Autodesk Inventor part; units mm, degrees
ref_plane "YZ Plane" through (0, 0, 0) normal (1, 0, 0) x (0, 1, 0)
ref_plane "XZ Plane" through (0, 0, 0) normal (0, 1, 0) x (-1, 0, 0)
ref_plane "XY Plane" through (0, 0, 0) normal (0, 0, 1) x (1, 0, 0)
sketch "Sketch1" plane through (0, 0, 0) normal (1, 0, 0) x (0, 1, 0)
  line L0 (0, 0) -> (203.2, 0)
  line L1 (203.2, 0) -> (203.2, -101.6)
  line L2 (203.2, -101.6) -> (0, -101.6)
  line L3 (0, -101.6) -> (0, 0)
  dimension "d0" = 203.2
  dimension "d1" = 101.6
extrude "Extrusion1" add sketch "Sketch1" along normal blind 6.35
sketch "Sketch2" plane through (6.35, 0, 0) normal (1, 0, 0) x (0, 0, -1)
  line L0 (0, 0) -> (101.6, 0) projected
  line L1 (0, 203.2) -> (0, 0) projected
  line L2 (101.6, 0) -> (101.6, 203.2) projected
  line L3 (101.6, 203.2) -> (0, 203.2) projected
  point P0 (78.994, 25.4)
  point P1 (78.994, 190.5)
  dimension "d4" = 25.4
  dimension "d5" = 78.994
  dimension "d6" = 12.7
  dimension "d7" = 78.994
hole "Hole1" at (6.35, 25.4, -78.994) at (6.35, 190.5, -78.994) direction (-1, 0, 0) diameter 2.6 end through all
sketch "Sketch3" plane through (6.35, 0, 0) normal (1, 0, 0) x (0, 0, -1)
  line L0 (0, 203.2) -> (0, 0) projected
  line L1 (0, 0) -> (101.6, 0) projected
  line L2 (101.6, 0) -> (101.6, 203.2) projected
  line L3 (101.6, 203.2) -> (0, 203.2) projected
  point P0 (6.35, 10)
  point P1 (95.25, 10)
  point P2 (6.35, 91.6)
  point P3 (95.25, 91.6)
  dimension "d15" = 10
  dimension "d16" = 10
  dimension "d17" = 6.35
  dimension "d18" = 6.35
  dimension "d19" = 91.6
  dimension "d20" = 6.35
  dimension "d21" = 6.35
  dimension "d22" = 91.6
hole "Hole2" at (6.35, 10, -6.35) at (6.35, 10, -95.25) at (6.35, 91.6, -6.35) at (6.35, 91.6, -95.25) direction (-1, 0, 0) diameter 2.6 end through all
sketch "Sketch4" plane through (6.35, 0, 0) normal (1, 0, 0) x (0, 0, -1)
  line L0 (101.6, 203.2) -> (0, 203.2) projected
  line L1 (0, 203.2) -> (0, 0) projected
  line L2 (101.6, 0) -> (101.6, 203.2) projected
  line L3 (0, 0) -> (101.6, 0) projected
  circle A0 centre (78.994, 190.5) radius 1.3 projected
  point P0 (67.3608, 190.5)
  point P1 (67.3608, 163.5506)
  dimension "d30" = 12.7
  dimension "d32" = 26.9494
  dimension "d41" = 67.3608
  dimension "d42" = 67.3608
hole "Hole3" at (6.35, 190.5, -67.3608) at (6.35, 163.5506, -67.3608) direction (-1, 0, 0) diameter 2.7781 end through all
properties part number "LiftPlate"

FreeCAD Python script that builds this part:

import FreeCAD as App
import Part
import Sketcher
from FreeCAD import Vector
Q = App.Units.Quantity

doc = App.newDocument("Part")
body = doc.addObject("PartDesign::Body", "Body")

sketch1 = body.newObject("Sketcher::SketchObject", "Sketch")
sketch1.AttachmentSupport = (doc.getObject("YZ_Plane"), [""])
sketch1.MapMode = "FlatFace"
sketch1.addGeometry(Part.LineSegment(Vector(203.2, 0, 0), Vector(0, 0, 0)), False)
sketch1.addGeometry(Part.LineSegment(Vector(0, 0, 0), Vector(0, -101.6, 0)), False)
sketch1.addGeometry(Part.LineSegment(Vector(0, -101.6, 0), Vector(203.2, -101.6, 0)), False)
sketch1.addGeometry(Part.LineSegment(Vector(203.2, -101.6, 0), Vector(203.2, 0, 0)), False)
sketch1.addConstraint(Sketcher.Constraint("Coincident", 0, 2, 1, 1))
sketch1.addConstraint(Sketcher.Constraint("Coincident", 1, 2, 2, 1))
sketch1.addConstraint(Sketcher.Constraint("Coincident", 2, 2, 3, 1))
sketch1.addConstraint(Sketcher.Constraint("Coincident", 3, 2, 0, 1))
sketch1.addConstraint(Sketcher.Constraint("Horizontal", 0))
sketch1.addConstraint(Sketcher.Constraint("Vertical", 1))
sketch1.addConstraint(Sketcher.Constraint("Horizontal", 2))
sketch1.addConstraint(Sketcher.Constraint("Vertical", 3))
sketch1.addConstraint(Sketcher.Constraint("Coincident", 0, 2, -1, 1))
sketch1.addConstraint(Sketcher.Constraint("DistanceX", 0, 2, 0, 1, Q("8 in")))
sketch1.addConstraint(Sketcher.Constraint("DistanceY", 1, 2, 1, 1, Q("4 in")))
pad1 = body.newObject("PartDesign::Pad", "Pad")
pad1.Profile = sketch1
pad1.Length = Q("0.25 in")

sketch2 = body.newObject("Sketcher::SketchObject", "Sketch001")
sketch2.AttachmentSupport = (doc.getObject("YZ_Plane"), [""])
sketch2.MapMode = "FlatFace"
sketch2.AttachmentOffset = App.Placement(Vector(0, 0, 0.25 * 25.4), App.Rotation())
sketch2.addGeometry(Part.Circle(Vector(25.4, -78.994, 0), Vector(0, 0, 1), 1.3), False)
sketch2.addGeometry(Part.Circle(Vector(190.5, -78.994, 0), Vector(0, 0, 1), 1.3), False)
sketch2.addConstraint(Sketcher.Constraint("Equal", 0, 1))
sketch2.addConstraint(Sketcher.Constraint("Horizontal", 0, 3, 1, 3))
sketch2.addConstraint(Sketcher.Constraint("DistanceX", -1, 1, 0, 3, Q("1 in")))
sketch2.addConstraint(Sketcher.Constraint("DistanceX", -1, 1, 1, 3, Q("7.5 in")))
sketch2.addConstraint(Sketcher.Constraint("Diameter", 0, 2.6))
sketch2.addConstraint(Sketcher.Constraint("DistanceY", 0, 3, -1, 1, Q("3.11 in")))
doc.recompute()
hole = body.newObject("PartDesign::Hole", "Hole")
hole.Profile = sketch2
hole.ThreadType = "None"
hole.Diameter = 2.6
hole.DepthType = "ThroughAll"

sketch3 = body.newObject("Sketcher::SketchObject", "Sketch002")
sketch3.AttachmentSupport = (doc.getObject("YZ_Plane"), [""])
sketch3.MapMode = "FlatFace"
sketch3.AttachmentOffset = App.Placement(Vector(0, 0, 0.25 * 25.4), App.Rotation())
sketch3.addGeometry(Part.Circle(Vector(10, -6.35, 0), Vector(0, 0, 1), 1.3), False)
sketch3.addGeometry(Part.Circle(Vector(10, -95.25, 0), Vector(0, 0, 1), 1.3), False)
sketch3.addGeometry(Part.Circle(Vector(91.6, -6.35, 0), Vector(0, 0, 1), 1.3), False)
sketch3.addGeometry(Part.Circle(Vector(91.6, -95.25, 0), Vector(0, 0, 1), 1.3), False)
sketch3.addConstraint(Sketcher.Constraint("Equal", 0, 1))
sketch3.addConstraint(Sketcher.Constraint("Equal", 1, 2))
sketch3.addConstraint(Sketcher.Constraint("Equal", 2, 3))
sketch3.addConstraint(Sketcher.Constraint("Horizontal", 0, 3, 2, 3))
sketch3.addConstraint(Sketcher.Constraint("Horizontal", 1, 3, 3, 3))
sketch3.addConstraint(Sketcher.Constraint("Vertical", 0, 3, 1, 3))
sketch3.addConstraint(Sketcher.Constraint("Vertical", 2, 3, 3, 3))
sketch3.addConstraint(Sketcher.Constraint("DistanceY", 1, 3, 0, 3, Q("3.5 in")))
sketch3.addConstraint(Sketcher.Constraint("Diameter", 0, 2.6))
sketch3.addConstraint(Sketcher.Constraint("DistanceY", 0, 3, -1, 1, Q("0.25 in")))
sketch3.addConstraint(Sketcher.Constraint("DistanceX", -1, 1, 0, 3, Q("0.3937 in")))
sketch3.addConstraint(Sketcher.Constraint("DistanceX", -1, 1, 2, 3, Q("3.6063 in")))
doc.recompute()
hole2 = body.newObject("PartDesign::Hole", "Hole001")
hole2.Profile = sketch3
hole2.ThreadType = "None"
hole2.Diameter = 2.6
hole2.DepthType = "ThroughAll"

sketch4 = body.newObject("Sketcher::SketchObject", "Sketch003")
sketch4.AttachmentSupport = (doc.getObject("YZ_Plane"), [""])
sketch4.MapMode = "FlatFace"
sketch4.AttachmentOffset = App.Placement(Vector(0, 0, 0.25 * 25.4), App.Rotation())
sketch4.addGeometry(Part.Circle(Vector(190.5, -67.3608, 0), Vector(0, 0, 1), 1.38905), False)
sketch4.addGeometry(Part.Circle(Vector(163.5506, -67.3608, 0), Vector(0, 0, 1), 1.38905), False)
sketch4.addConstraint(Sketcher.Constraint("Equal", 0, 1))
sketch4.addConstraint(Sketcher.Constraint("Horizontal", 0, 3, 1, 3))
sketch4.addConstraint(Sketcher.Constraint("Diameter", 0, Q("0.1093701 in")))
sketch4.addConstraint(Sketcher.Constraint("DistanceX", -1, 1, 0, 3, Q("7.5 in")))
sketch4.addConstraint(Sketcher.Constraint("DistanceY", 0, 3, -1, 1, Q("2.652 in")))
sketch4.addConstraint(Sketcher.Constraint("DistanceX", -1, 1, 1, 3, Q("6.439 in")))
doc.recompute()
hole3 = body.newObject("PartDesign::Hole", "Hole002")
hole3.Profile = sketch4
hole3.ThreadType = "None"
hole3.Diameter = Q("0.109374 in")
hole3.DepthType = "ThroughAll"

doc.recompute()
